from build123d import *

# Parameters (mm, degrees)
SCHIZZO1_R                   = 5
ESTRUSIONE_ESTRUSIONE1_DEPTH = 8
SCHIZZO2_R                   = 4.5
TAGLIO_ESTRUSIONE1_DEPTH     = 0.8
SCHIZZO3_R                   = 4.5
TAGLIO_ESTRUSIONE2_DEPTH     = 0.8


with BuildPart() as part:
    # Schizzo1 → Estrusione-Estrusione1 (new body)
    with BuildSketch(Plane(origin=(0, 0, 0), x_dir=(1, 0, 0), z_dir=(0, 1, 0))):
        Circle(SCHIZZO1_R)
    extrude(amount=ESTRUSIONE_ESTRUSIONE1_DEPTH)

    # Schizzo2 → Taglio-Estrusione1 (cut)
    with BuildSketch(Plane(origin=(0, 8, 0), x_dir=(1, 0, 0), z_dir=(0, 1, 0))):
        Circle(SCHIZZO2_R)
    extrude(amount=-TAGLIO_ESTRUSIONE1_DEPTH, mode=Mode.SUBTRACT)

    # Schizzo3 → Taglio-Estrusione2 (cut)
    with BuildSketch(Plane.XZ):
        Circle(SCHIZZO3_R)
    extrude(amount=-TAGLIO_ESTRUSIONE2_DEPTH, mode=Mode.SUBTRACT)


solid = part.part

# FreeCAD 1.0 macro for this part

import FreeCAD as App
import Part
import Sketcher
Q = App.Units.Quantity

doc = App.newDocument("Part")
params = doc.addObject("Spreadsheet::Sheet", "Params")
for row, (alias, value) in enumerate([
    ("sketch1_diameter", "10 mm"),
    ("pad1_length", "8 mm"),
    ("sketch2_diameter", "9 mm"),
    ("pocket1_length", "0.8 mm"),
    ("sketch3_diameter", "9 mm"),
    ("pocket2_length", "0.8 mm"),
], start=1):
    params.set(f"A{row}", alias)
    params.set(f"B{row}", "=" + value)
    params.setAlias(f"B{row}", alias)

body = doc.addObject("PartDesign::Body", "Body")

# Sketch on XZ plane
sketch1 = body.newObject("Sketcher::SketchObject", "Sketch")
sketch1.AttachmentSupport = (doc.getObject("XZ_Plane"), [""])
sketch1.MapMode = "FlatFace"
sketch1.addGeometry(Part.Circle(App.Vector(0, 0, 0), App.Vector(0, 0, 1), 5), False)
sketch1.addConstraint([
    Sketcher.Constraint("Coincident", 0, 3, -1, 1),
    Sketcher.Constraint("Diameter", 0, Q("10 mm")),
])
sketch1.setExpression("Constraints[1]", "Params.sketch1_diameter")
pad1 = body.newObject("PartDesign::Pad", "Pad")
pad1.Profile = sketch1
pad1.setExpression("Length", "Params.pad1_length")
pad1.Reversed = True

# Sketch on XZ plane
sketch2 = body.newObject("Sketcher::SketchObject", "Sketch001")
sketch2.AttachmentSupport = (doc.getObject("XZ_Plane"), [""])
sketch2.MapMode = "FlatFace"
sketch2.AttachmentOffset = App.Placement(App.Vector(0, 0, -8), App.Rotation())
sketch2.addGeometry(Part.Circle(App.Vector(0, 0, 0), App.Vector(0, 0, 1), 4.5), False)
sketch2.addConstraint([
    Sketcher.Constraint("Coincident", 0, 3, -1, 1),
    Sketcher.Constraint("Diameter", 0, Q("9 mm")),
])
sketch2.setExpression("Constraints[1]", "Params.sketch2_diameter")
pocket1 = body.newObject("PartDesign::Pocket", "Pocket")
pocket1.Profile = sketch2
pocket1.setExpression("Length", "Params.pocket1_length")
pocket1.Reversed = True

# Sketch on XZ plane
sketch3 = body.newObject("Sketcher::SketchObject", "Sketch002")
sketch3.AttachmentSupport = (doc.getObject("XZ_Plane"), [""])
sketch3.MapMode = "FlatFace"
sketch3.addGeometry(Part.Circle(App.Vector(0, 0, 0), App.Vector(0, 0, 1), 4.5), False)
sketch3.addConstraint([
    Sketcher.Constraint("Coincident", 0, 3, -1, 1),
    Sketcher.Constraint("Diameter", 0, Q("9 mm")),
])
sketch3.setExpression("Constraints[1]", "Params.sketch3_diameter")
pocket2 = body.newObject("PartDesign::Pocket", "Pocket001")
pocket2.Profile = sketch3
pocket2.setExpression("Length", "Params.pocket2_length")

doc.recompute()
